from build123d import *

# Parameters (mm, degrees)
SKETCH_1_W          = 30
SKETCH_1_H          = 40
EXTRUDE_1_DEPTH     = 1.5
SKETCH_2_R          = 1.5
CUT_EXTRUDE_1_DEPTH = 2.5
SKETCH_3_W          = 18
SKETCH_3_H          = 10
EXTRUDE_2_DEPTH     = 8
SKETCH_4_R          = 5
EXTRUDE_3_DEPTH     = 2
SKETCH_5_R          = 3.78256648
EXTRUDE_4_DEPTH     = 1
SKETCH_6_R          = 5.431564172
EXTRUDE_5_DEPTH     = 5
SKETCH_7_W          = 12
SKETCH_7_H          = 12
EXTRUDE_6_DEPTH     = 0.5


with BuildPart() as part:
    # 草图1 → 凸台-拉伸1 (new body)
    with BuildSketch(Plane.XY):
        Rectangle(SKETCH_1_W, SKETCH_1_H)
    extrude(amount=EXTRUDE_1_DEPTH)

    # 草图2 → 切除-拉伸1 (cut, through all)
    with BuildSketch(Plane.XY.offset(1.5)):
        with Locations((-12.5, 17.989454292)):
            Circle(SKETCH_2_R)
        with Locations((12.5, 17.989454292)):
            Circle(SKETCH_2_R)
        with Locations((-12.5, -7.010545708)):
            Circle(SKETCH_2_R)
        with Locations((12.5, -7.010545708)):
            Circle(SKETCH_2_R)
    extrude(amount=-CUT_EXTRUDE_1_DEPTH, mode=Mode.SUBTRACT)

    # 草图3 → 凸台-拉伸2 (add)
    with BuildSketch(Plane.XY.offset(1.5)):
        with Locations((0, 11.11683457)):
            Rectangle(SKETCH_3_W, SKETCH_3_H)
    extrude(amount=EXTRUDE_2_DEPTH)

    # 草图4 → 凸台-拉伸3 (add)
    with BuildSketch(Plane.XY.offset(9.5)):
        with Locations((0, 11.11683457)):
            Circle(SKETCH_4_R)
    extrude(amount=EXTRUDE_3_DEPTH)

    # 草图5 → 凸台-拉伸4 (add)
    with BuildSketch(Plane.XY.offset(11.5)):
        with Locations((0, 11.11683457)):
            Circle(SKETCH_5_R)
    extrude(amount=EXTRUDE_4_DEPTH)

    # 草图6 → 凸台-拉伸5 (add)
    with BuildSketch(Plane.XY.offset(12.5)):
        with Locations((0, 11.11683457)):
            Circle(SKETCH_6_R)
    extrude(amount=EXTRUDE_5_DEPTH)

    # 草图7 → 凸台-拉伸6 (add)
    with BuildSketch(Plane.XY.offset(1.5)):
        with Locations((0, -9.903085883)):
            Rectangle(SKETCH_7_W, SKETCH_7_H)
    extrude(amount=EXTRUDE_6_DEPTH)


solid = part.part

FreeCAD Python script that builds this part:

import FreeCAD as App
import Part
import Sketcher
Q = App.Units.Quantity

doc = App.newDocument("Part")
params = doc.addObject("Spreadsheet::Sheet", "Params")
for row, (alias, value) in enumerate([
    ("sketch1_width", "30 mm"),
    ("sketch1_height", "40 mm"),
    ("pad1_length", "1.5 mm"),
    ("sketch2_diameter", "3 mm"),
    ("sketch3_width", "18 mm"),
    ("sketch3_height", "10 mm"),
    ("pad2_length", "8 mm"),
    ("sketch4_diameter", "10 mm"),
    ("pad3_length", "2 mm"),
    ("pad4_length", "1 mm"),
    ("pad5_length", "5 mm"),
    ("sketch7_width", "12 mm"),
    ("pad6_length", "0.5 mm"),
], start=1):
    params.set(f"A{row}", alias)
    params.set(f"B{row}", "=" + value)
    params.setAlias(f"B{row}", alias)

body = doc.addObject("PartDesign::Body", "Body")

# Sketch on XY plane
sketch1 = doc.addObject("Sketcher::SketchObject", "Sketch")
body.addObject(sketch1)
sketch1.AttachmentSupport = (doc.XY_Plane, [""])
sketch1.MapMode = "FlatFace"
sketch1.addGeometry([
    Part.LineSegment(App.Vector(-15, 20, 0), App.Vector(-15, -20, 0)),
    Part.LineSegment(App.Vector(-15, -20, 0), App.Vector(15, -20, 0)),
    Part.LineSegment(App.Vector(15, -20, 0), App.Vector(15, 20, 0)),
    Part.LineSegment(App.Vector(15, 20, 0), App.Vector(-15, 20, 0)),
], False)
sketch1.addConstraint([
    Sketcher.Constraint("Coincident", 0, 2, 1, 1),
    Sketcher.Constraint("Coincident", 1, 2, 2, 1),
    Sketcher.Constraint("Coincident", 2, 2, 3, 1),
    Sketcher.Constraint("Coincident", 3, 2, 0, 1),
    Sketcher.Constraint("Vertical", 0),
    Sketcher.Constraint("Horizontal", 1),
    Sketcher.Constraint("Vertical", 2),
    Sketcher.Constraint("Horizontal", 3),
    Sketcher.Constraint("Symmetric", 0, 2, 2, 2, -1, 1),
    Sketcher.Constraint("DistanceX", 1, 1, 1, 2, Q("30 mm")),
    Sketcher.Constraint("DistanceY", 0, 2, 0, 1, Q("40 mm")),
])
sketch1.setExpression("Constraints[9]", "Params.sketch1_width")
sketch1.setExpression("Constraints[10]", "Params.sketch1_height")
pad1 = doc.addObject("PartDesign::Pad", "Pad")
body.addObject(pad1)
pad1.Profile = sketch1
pad1.setExpression("Length", "Params.pad1_length")

# Sketch on XY plane
sketch2 = doc.addObject("Sketcher::SketchObject", "Sketch001")
body.addObject(sketch2)
sketch2.AttachmentSupport = (doc.XY_Plane, [""])
sketch2.MapMode = "FlatFace"
sketch2.AttachmentOffset = App.Placement(App.Vector(0, 0, 1.5), App.Rotation())
sketch2.addGeometry([
    Part.Circle(App.Vector(-12.5, 18, 0), App.Vector(0, 0, 1), 1.5),
    Part.Circle(App.Vector(12.5, 18, 0), App.Vector(0, 0, 1), 1.5),
    Part.Circle(App.Vector(-12.5, -7, 0), App.Vector(0, 0, 1), 1.5),
    Part.Circle(App.Vector(12.5, -7, 0), App.Vector(0, 0, 1), 1.5),
], False)
sketch2.addConstraint([
    Sketcher.Constraint("Equal", 0, 1),
    Sketcher.Constraint("Equal", 1, 2),
    Sketcher.Constraint("Equal", 2, 3),
    Sketcher.Constraint("Symmetric", 0, 3, 1, 3, -2),
    Sketcher.Constraint("Symmetric", 2, 3, 3, 3, -2),
    Sketcher.Constraint("Vertical", 0, 3, 2, 3),
    Sketcher.Constraint("Diameter", 0, Q("3 mm")),
    Sketcher.Constraint("DistanceX", 0, 3, 1, 3, Q("25 mm")),
    Sketcher.Constraint("DistanceY", 2, 3, 0, 3, Q("25 mm")),
    Sketcher.Constraint("DistanceY", -1, 1, 0, 3, Q("17.989454 mm")),
])
sketch2.setExpression("Constraints[6]", "Params.sketch2_diameter")
pocket1 = doc.addObject("PartDesign::Pocket", "Pocket")
body.addObject(pocket1)
pocket1.Profile = sketch2
pocket1.Type = "ThroughAll"

# Sketch on XY plane
sketch3 = doc.addObject("Sketcher::SketchObject", "Sketch002")
body.addObject(sketch3)
sketch3.AttachmentSupport = (doc.XY_Plane, [""])
sketch3.MapMode = "FlatFace"
sketch3.AttachmentOffset = App.Placement(App.Vector(0, 0, 1.5), App.Rotation())
sketch3.addGeometry([
    Part.LineSegment(App.Vector(-9, 16, 0), App.Vector(-9, 6, 0)),
    Part.LineSegment(App.Vector(-9, 6, 0), App.Vector(9, 6, 0)),
    Part.LineSegment(App.Vector(9, 6, 0), App.Vector(9, 16, 0)),
    Part.LineSegment(App.Vector(9, 16, 0), App.Vector(-9, 16, 0)),
], False)
sketch3.addConstraint([
    Sketcher.Constraint("Coincident", 0, 2, 1, 1),
    Sketcher.Constraint("Coincident", 1, 2, 2, 1),
    Sketcher.Constraint("Coincident", 2, 2, 3, 1),
    Sketcher.Constraint("Coincident", 3, 2, 0, 1),
    Sketcher.Constraint("Vertical", 0),
    Sketcher.Constraint("Horizontal", 1),
    Sketcher.Constraint("Vertical", 2),
    Sketcher.Constraint("Horizontal", 3),
    Sketcher.Constraint("DistanceX", 1, 1, 1, 2, Q("18 mm")),
    Sketcher.Constraint("DistanceY", 0, 2, 0, 1, Q("10 mm")),
    Sketcher.Constraint("DistanceX", 0, 2, -1, 1, Q("9 mm")),
    Sketcher.Constraint("DistanceY", -1, 1, 0, 2, Q("6.116835 mm")),
])
sketch3.setExpression("Constraints[8]", "Params.sketch3_width")
sketch3.setExpression("Constraints[9]", "Params.sketch3_height")
pad2 = doc.addObject("PartDesign::Pad", "Pad001")
body.addObject(pad2)
pad2.Profile = sketch3
pad2.setExpression("Length", "Params.pad2_length")

# Sketch on XY plane
sketch4 = doc.addObject("Sketcher::SketchObject", "Sketch003")
body.addObject(sketch4)
sketch4.AttachmentSupport = (doc.XY_Plane, [""])
sketch4.MapMode = "FlatFace"
sketch4.AttachmentOffset = App.Placement(App.Vector(0, 0, 9.5), App.Rotation())
sketch4.addGeometry(Part.Circle(App.Vector(0, 11, 0), App.Vector(0, 0, 1), 5), False)
sketch4.addConstraint([
    Sketcher.Constraint("PointOnObject", 0, 3, -2),
    Sketcher.Constraint("Diameter", 0, Q("10 mm")),
    Sketcher.Constraint("DistanceY", -1, 1, 0, 3, Q("11.116835 mm")),
])
sketch4.setExpression("Constraints[1]", "Params.sketch4_diameter")
pad3 = doc.addObject("PartDesign::Pad", "Pad002")
body.addObject(pad3)
pad3.Profile = sketch4
pad3.setExpression("Length", "Params.pad3_length")

# Sketch on XY plane
sketch5 = doc.addObject("Sketcher::SketchObject", "Sketch004")
body.addObject(sketch5)
sketch5.AttachmentSupport = (doc.XY_Plane, [""])
sketch5.MapMode = "FlatFace"
sketch5.AttachmentOffset = App.Placement(App.Vector(0, 0, 11.5), App.Rotation())
sketch5.addGeometry(Part.Circle(App.Vector(0, 11.1, 0), App.Vector(0, 0, 1), 3.8), False)
sketch5.addConstraint([
    Sketcher.Constraint("PointOnObject", 0, 3, -2),
    Sketcher.Constraint("Diameter", 0, Q("7.565133 mm")),
    Sketcher.Constraint("DistanceY", -1, 1, 0, 3, Q("11.116835 mm")),
])
pad4 = doc.addObject("PartDesign::Pad", "Pad003")
body.addObject(pad4)
pad4.Profile = sketch5
pad4.setExpression("Length", "Params.pad4_length")

# Sketch on XY plane
sketch6 = doc.addObject("Sketcher::SketchObject", "Sketch005")
body.addObject(sketch6)
sketch6.AttachmentSupport = (doc.XY_Plane, [""])
sketch6.MapMode = "FlatFace"
sketch6.AttachmentOffset = App.Placement(App.Vector(0, 0, 12.5), App.Rotation())
sketch6.addGeometry(Part.Circle(App.Vector(0, 11, 0), App.Vector(0, 0, 1), 5), False)
sketch6.addConstraint([
    Sketcher.Constraint("PointOnObject", 0, 3, -2),
    Sketcher.Constraint("Diameter", 0, Q("10.863128 mm")),
    Sketcher.Constraint("DistanceY", -1, 1, 0, 3, Q("11.116835 mm")),
])
pad5 = doc.addObject("PartDesign::Pad", "Pad004")
body.addObject(pad5)
pad5.Profile = sketch6
pad5.setExpression("Length", "Params.pad5_length")

# Sketch on XY plane
sketch7 = doc.addObject("Sketcher::SketchObject", "Sketch006")
body.addObject(sketch7)
sketch7.AttachmentSupport = (doc.XY_Plane, [""])
sketch7.MapMode = "FlatFace"
sketch7.AttachmentOffset = App.Placement(App.Vector(0, 0, 1.5), App.Rotation())
sketch7.addGeometry([
    Part.LineSegment(App.Vector(-6, -4, 0), App.Vector(-6, -16, 0)),
    Part.LineSegment(App.Vector(-6, -16, 0), App.Vector(6, -16, 0)),
    Part.LineSegment(App.Vector(6, -16, 0), App.Vector(6, -4, 0)),
    Part.LineSegment(App.Vector(6, -4, 0), App.Vector(-6, -4, 0)),
], False)
sketch7.addConstraint([
    Sketcher.Constraint("Coincident", 0, 2, 1, 1),
    Sketcher.Constraint("Coincident", 1, 2, 2, 1),
    Sketcher.Constraint("Coincident", 2, 2, 3, 1),
    Sketcher.Constraint("Coincident", 3, 2, 0, 1),
    Sketcher.Constraint("Vertical", 0),
    Sketcher.Constraint("Horizontal", 1),
    Sketcher.Constraint("Vertical", 2),
    Sketcher.Constraint("Horizontal", 3),
    Sketcher.Constraint("Equal", 3, 0),
    Sketcher.Constraint("DistanceX", 1, 1, 1, 2, Q("12 mm")),
    Sketcher.Constraint("DistanceX", 0, 2, -1, 1, Q("6 mm")),
    Sketcher.Constraint("DistanceY", 0, 2, -1, 1, Q("15.903086 mm")),
])
sketch7.setExpression("Constraints[9]", "Params.sketch7_width")
pad6 = doc.addObject("PartDesign::Pad", "Pad005")
body.addObject(pad6)
pad6.Profile = sketch7
pad6.setExpression("Length", "Params.pad6_length")

doc.recompute()
